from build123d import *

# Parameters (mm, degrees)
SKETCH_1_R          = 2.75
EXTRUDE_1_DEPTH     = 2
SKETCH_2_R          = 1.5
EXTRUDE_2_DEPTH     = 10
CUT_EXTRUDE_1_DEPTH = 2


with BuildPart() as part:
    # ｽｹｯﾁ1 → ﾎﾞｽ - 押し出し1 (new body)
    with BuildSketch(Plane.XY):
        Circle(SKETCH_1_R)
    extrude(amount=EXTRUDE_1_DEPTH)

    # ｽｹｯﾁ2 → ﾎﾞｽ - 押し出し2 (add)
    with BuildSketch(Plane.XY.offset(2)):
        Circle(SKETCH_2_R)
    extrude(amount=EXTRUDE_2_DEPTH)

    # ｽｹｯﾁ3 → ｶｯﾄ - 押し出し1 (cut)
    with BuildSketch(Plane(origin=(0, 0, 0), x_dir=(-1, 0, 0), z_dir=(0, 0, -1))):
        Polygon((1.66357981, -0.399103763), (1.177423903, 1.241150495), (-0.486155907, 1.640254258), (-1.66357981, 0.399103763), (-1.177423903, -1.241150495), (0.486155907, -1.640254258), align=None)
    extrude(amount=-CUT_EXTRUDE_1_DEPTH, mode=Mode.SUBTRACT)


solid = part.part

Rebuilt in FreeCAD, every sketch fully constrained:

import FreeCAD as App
import Part
import Sketcher

V = App.Vector

doc = App.newDocument("Part")
params = doc.addObject("Spreadsheet::Sheet", "Params")
for row, (alias, value) in enumerate([
    ("sketch1_diameter", "5.5 mm"),
    ("pad1_length", "2 mm"),
    ("sketch2_diameter", "3 mm"),
    ("pad2_length", "10 mm"),
    ("pocket1_length", "2 mm"),
], start=1):
    params.set(f"A{row}", alias)
    params.set(f"B{row}", "=" + value)
    params.setAlias(f"B{row}", alias)

body = doc.addObject("PartDesign::Body", "Body")

# Sketch on XY plane
sketch1 = body.newObject("Sketcher::SketchObject", "Sketch")
sketch1.AttachmentSupport = (doc.getObject("XY_Plane"), [""])
sketch1.MapMode = "FlatFace"
sketch1.addGeometry(Part.Circle(V(0, 0, 0), V(0, 0, 1), 2.8), False)
sketch1.addConstraint(Sketcher.Constraint("Coincident", 0, 3, -1, 1))
sketch1.addConstraint(Sketcher.Constraint("Diameter", 0, 5.5))
sketch1.setExpression("Constraints[1]", "Params.sketch1_diameter")
pad1 = body.newObject("PartDesign::Pad", "Pad")
pad1.Profile = sketch1
pad1.setExpression("Length", "Params.pad1_length")

# Sketch on XY plane
sketch2 = body.newObject("Sketcher::SketchObject", "Sketch001")
sketch2.AttachmentSupport = (doc.getObject("XY_Plane"), [""])
sketch2.MapMode = "FlatFace"
sketch2.AttachmentOffset = App.Placement(V(0, 0, 2), App.Rotation())
sketch2.addGeometry(Part.Circle(V(0, 0, 0), V(0, 0, 1), 1.5), False)
sketch2.addConstraint(Sketcher.Constraint("Coincident", 0, 3, -1, 1))
sketch2.addConstraint(Sketcher.Constraint("Diameter", 0, 3.0))
sketch2.setExpression("Constraints[1]", "Params.sketch2_diameter")
pad2 = body.newObject("PartDesign::Pad", "Pad001")
pad2.Profile = sketch2
pad2.setExpression("Length", "Params.pad2_length")

# Sketch on XY plane
sketch3 = body.newObject("Sketcher::SketchObject", "Sketch002")
sketch3.AttachmentSupport = (doc.getObject("XY_Plane"), [""])
sketch3.MapMode = "FlatFace"
sketch3.addGeometry(Part.LineSegment(V(-1.7, -0.4, 0), V(-1.2, 1.2, 0)), False)
sketch3.addGeometry(Part.LineSegment(V(-1.2, 1.2, 0), V(0.5, 1.6, 0)), False)
sketch3.addGeometry(Part.LineSegment(V(0.5, 1.6, 0), V(1.7, 0.4, 0)), False)
sketch3.addGeometry(Part.LineSegment(V(1.7, 0.4, 0), V(1.2, -1.2, 0)), False)
sketch3.addGeometry(Part.LineSegment(V(1.2, -1.2, 0), V(-0.5, -1.6, 0)), False)
sketch3.addGeometry(Part.LineSegment(V(-0.5, -1.6, 0), V(-1.7, -0.4, 0)), False)
sketch3.addConstraint(Sketcher.Constraint("Coincident", 0, 2, 1, 1))
sketch3.addConstraint(Sketcher.Constraint("Coincident", 1, 2, 2, 1))
sketch3.addConstraint(Sketcher.Constraint("Coincident", 2, 2, 3, 1))
sketch3.addConstraint(Sketcher.Constraint("Coincident", 3, 2, 4, 1))
sketch3.addConstraint(Sketcher.Constraint("Coincident", 4, 2, 5, 1))
sketch3.addConstraint(Sketcher.Constraint("Coincident", 5, 2, 0, 1))
sketch3.addConstraint(Sketcher.Constraint("Symmetric", 0, 2, 3, 2, -1, 1))
sketch3.addConstraint(Sketcher.Constraint("Symmetric", 1, 2, 4, 2, -1, 1))
sketch3.addConstraint(Sketcher.Constraint("Symmetric", 2, 2, 5, 2, -1, 1))
sketch3.addConstraint(Sketcher.Constraint("Equal", 0, 1))
sketch3.addConstraint(Sketcher.Constraint("Equal", 1, 2))
sketch3.addConstraint(Sketcher.Constraint("DistanceY", 3, 2, 0, 2, 2.482301))
sketch3.addConstraint(Sketcher.Constraint("DistanceX", -1, 1, 2, 2, 1.66358))
sketch3.addConstraint(Sketcher.Constraint("DistanceX", 0, 2, 1, 2, 1.66358))
sketch3.addConstraint(Sketcher.Constraint("DistanceY", 2, 2, 1, 2, 1.24115))
pocket1 = body.newObject("PartDesign::Pocket", "Pocket")
pocket1.Profile = sketch3
pocket1.setExpression("Length", "Params.pocket1_length")
pocket1.Reversed = True

doc.recompute()
